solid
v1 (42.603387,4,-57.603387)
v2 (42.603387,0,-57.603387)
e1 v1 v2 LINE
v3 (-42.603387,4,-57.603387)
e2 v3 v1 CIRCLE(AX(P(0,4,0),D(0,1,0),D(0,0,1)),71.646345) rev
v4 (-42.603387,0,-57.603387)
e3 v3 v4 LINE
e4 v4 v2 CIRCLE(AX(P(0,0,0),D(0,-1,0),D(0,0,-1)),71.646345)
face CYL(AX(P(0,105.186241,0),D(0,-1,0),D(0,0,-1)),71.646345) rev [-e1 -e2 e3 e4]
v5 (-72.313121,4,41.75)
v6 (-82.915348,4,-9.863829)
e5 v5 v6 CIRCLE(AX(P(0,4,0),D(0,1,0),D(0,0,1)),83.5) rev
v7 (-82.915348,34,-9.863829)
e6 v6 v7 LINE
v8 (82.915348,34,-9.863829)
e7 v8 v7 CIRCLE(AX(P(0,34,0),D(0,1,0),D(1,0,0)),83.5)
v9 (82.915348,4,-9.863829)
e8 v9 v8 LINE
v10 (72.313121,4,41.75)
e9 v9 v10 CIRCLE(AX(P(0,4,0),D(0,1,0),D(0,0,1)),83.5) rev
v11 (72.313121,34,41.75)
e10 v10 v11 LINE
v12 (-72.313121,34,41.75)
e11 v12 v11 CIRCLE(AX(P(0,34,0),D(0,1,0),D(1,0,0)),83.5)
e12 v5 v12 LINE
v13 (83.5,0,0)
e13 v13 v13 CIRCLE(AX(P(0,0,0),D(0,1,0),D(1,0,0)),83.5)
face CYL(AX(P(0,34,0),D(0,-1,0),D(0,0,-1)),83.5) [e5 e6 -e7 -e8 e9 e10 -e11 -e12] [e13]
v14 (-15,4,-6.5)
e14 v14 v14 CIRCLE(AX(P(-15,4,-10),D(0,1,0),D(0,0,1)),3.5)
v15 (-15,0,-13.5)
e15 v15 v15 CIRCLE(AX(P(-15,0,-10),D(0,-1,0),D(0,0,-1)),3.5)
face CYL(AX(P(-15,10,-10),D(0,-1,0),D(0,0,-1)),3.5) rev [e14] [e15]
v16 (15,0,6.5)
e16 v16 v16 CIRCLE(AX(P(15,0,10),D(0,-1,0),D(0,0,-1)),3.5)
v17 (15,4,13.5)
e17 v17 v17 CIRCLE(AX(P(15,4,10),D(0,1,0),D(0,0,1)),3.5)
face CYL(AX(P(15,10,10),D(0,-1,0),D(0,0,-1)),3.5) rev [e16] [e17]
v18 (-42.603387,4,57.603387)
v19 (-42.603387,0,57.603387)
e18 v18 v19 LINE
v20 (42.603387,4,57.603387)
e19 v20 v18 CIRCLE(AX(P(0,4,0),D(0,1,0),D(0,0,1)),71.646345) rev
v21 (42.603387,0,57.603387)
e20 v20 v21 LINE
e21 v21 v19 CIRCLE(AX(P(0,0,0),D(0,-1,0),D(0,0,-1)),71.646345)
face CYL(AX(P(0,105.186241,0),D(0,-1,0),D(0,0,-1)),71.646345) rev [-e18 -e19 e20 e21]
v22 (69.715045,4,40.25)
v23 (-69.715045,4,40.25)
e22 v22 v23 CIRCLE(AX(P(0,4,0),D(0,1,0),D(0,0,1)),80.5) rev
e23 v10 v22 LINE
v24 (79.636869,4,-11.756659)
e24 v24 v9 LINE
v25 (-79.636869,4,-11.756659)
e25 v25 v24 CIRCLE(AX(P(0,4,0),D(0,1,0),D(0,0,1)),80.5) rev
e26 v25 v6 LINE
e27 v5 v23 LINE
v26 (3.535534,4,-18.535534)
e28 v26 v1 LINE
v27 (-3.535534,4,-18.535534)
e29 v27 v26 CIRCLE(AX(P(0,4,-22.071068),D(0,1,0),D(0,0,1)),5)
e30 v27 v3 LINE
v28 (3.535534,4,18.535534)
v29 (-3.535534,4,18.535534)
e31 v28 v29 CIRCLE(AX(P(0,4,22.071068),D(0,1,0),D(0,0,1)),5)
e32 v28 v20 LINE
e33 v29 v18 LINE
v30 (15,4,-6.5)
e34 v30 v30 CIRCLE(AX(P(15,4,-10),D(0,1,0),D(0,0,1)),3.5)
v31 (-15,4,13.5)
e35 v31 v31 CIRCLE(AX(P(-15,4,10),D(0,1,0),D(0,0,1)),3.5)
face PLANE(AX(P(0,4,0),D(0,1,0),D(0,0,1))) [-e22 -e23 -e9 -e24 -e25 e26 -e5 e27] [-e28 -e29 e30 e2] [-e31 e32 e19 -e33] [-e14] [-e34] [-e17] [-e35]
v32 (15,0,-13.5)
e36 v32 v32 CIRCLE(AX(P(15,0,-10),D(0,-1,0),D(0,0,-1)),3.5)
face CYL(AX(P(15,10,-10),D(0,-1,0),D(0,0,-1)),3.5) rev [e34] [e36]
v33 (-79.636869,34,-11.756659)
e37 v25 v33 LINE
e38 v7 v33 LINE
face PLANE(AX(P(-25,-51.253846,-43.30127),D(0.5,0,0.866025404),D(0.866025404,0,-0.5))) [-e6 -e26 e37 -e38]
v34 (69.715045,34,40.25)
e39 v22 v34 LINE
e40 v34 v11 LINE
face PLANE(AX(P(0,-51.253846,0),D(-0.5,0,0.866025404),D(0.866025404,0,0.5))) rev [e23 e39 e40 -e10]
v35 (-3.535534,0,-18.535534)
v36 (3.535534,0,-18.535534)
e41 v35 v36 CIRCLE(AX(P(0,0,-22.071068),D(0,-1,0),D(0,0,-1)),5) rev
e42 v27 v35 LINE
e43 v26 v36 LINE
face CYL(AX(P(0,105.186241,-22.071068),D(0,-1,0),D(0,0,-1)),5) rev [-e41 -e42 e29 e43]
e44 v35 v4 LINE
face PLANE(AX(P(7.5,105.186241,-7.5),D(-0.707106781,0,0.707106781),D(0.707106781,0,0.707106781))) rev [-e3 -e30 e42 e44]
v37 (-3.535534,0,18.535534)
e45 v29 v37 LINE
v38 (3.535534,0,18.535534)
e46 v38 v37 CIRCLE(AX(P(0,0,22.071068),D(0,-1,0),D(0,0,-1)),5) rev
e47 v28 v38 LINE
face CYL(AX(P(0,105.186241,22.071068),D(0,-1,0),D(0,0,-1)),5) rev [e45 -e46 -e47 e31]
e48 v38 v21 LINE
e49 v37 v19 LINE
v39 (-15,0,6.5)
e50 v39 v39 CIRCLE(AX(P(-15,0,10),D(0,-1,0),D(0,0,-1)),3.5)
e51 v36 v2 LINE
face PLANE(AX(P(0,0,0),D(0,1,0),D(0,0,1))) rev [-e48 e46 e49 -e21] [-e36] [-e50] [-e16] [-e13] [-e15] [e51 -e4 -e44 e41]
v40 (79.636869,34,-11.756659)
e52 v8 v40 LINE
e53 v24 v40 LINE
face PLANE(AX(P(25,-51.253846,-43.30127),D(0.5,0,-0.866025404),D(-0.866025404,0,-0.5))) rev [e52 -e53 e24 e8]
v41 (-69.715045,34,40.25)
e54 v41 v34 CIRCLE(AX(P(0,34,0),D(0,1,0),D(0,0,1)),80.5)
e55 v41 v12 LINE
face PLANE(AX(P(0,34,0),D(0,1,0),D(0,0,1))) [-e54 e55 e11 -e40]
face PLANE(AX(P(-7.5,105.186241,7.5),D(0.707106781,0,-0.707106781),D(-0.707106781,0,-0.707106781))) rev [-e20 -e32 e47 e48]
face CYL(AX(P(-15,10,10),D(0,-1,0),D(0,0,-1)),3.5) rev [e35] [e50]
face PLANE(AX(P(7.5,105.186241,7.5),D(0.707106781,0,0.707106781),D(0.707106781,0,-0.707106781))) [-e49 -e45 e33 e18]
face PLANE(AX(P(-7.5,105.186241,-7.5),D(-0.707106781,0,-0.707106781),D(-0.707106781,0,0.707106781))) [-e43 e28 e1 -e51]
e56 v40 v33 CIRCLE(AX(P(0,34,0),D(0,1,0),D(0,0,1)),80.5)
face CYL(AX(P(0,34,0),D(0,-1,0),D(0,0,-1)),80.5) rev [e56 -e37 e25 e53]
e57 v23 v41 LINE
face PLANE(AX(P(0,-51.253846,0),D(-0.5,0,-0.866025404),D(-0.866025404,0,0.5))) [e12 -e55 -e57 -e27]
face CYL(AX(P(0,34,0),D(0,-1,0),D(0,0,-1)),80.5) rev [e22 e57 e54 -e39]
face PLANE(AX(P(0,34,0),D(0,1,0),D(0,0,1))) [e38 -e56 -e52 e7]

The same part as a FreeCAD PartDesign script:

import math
import FreeCAD as App
import Part
import Sketcher
from FreeCAD import Vector
Q = App.Units.Quantity

doc = App.newDocument("Part")
body = doc.addObject("PartDesign::Body", "Body")

# Sketch on XZ plane
sketch1 = doc.addObject("Sketcher::SketchObject", "Sketch")
body.addObject(sketch1)
sketch1.AttachmentSupport = (doc.XZ_Plane, [""])
sketch1.MapMode = "FlatFace"
sketch1.addGeometry(Part.Circle(Vector(0, 0, 0), Vector(0, 0, 1), 80), False)
sketch1.addConstraint([
    Sketcher.Constraint("Coincident", 0, 3, -1, 1),
    Sketcher.Constraint("Diameter", 0, 161.0),
])
pad1 = doc.addObject("PartDesign::Pad", "Pad")
body.addObject(pad1)
pad1.Profile = sketch1
pad1.Length = 4
pad1.Reversed = True

# Sketch on XZ plane
sketch2 = doc.addObject("Sketcher::SketchObject", "Sketch001")
body.addObject(sketch2)
sketch2.AttachmentSupport = (doc.XZ_Plane, [""])
sketch2.MapMode = "FlatFace"
sketch2.addGeometry([
    Part.Circle(Vector(0, 0, 0), Vector(0, 0, 1), 84),
    Part.Circle(Vector(0, 0, 0), Vector(0, 0, 1), 80),
], False)
sketch2.addConstraint([
    Sketcher.Constraint("Coincident", 0, 3, -1, 1),
    Sketcher.Constraint("Coincident", 1, 3, -1, 1),
    Sketcher.Constraint("Diameter", 0, 167.0),
    Sketcher.Constraint("Diameter", 1, 161.0),
])
pad2 = doc.addObject("PartDesign::Pad", "Pad001")
body.addObject(pad2)
pad2.Profile = sketch2
pad2.Length = 34
pad2.Reversed = True

# Sketch on XZ plane
sketch3 = doc.addObject("Sketcher::SketchObject", "Sketch002")
body.addObject(sketch3)
sketch3.AttachmentSupport = (doc.XZ_Plane, [""])
sketch3.MapMode = "FlatFace"
sketch3.AttachmentOffset = App.Placement(Vector(0, 0, -4), App.Rotation())
sketch3.addGeometry([
    Part.LineSegment(Vector(82.9, -9.9, 0), Vector(79.6, -11.8, 0)),  # 0
    Part.ArcOfCircle(Part.Circle(Vector(0, 0, 0), Vector(0, 0, 1), 80.5), math.radians(-8.4), math.radians(0)),  # 1
    Part.ArcOfCircle(Part.Circle(Vector(0, 0, 0), Vector(0, 0, 1), 80.5), math.radians(0), math.radians(30)),  # 2
    Part.LineSegment(Vector(69.7, 40.2, 0), Vector(72.3, 41.8, 0)),  # 3
    Part.ArcOfCircle(Part.Circle(Vector(0, 0, 0), Vector(0, 0, 1), 83.5), math.radians(0), math.radians(30)),  # 4
    Part.ArcOfCircle(Part.Circle(Vector(0, 0, 0), Vector(0, 0, 1), 83.5), math.radians(-6.78), math.radians(0)),  # 5
    Part.ArcOfCircle(Part.Circle(Vector(0, 0, 0), Vector(0, 0, 1), 80.5), math.radians(150), math.radians(188)),  # 6
    Part.LineSegment(Vector(-79.6, -11.8, 0), Vector(-82.9, -9.9, 0)),  # 7
    Part.ArcOfCircle(Part.Circle(Vector(0, 0, 0), Vector(0, 0, 1), 83.5), math.radians(150), math.radians(187)),  # 8
    Part.LineSegment(Vector(-72.3, 41.8, 0), Vector(-69.7, 40.2, 0)),  # 9
], False)
sketch3.addConstraint([
    Sketcher.Constraint("Coincident", 0, 2, 1, 1),
    Sketcher.Constraint("Tangent", 1, 2, 2, 1),
    Sketcher.Constraint("Coincident", 2, 2, 3, 1),
    Sketcher.Constraint("Coincident", 3, 2, 4, 2),
    Sketcher.Constraint("Tangent", 4, 1, 5, 2),
    Sketcher.Constraint("Coincident", 5, 1, 0, 1),
    Sketcher.Constraint("Coincident", 6, 2, 7, 1),
    Sketcher.Constraint("Coincident", 7, 2, 8, 2),
    Sketcher.Constraint("Coincident", 8, 1, 9, 1),
    Sketcher.Constraint("Coincident", 9, 2, 6, 1),
    Sketcher.Constraint("Coincident", 1, 3, -1, 1),
    Sketcher.Constraint("Coincident", 4, 3, -1, 1),
    Sketcher.Constraint("Coincident", 6, 3, -1, 1),
    Sketcher.Constraint("Coincident", 8, 3, -1, 1),
    Sketcher.Constraint("Equal", 1, 2),
    Sketcher.Constraint("Equal", 4, 5),
    Sketcher.Constraint("Equal", 2, 6),
    Sketcher.Constraint("Equal", 5, 8),
    Sketcher.Constraint("PointOnObject", 1, 2, -1),
    Sketcher.Constraint("PointOnObject", 4, 1, -1),
    Sketcher.Constraint("Parallel", 0, 3),
    Sketcher.Constraint("Parallel", 7, 9),
    Sketcher.Constraint("Horizontal", 0, 2, 6, 2),
    Sketcher.Constraint("Horizontal", 5, 1, 7, 2),
    Sketcher.Constraint("Horizontal", 3, 2, 8, 1),
    Sketcher.Constraint("Radius", 1, 80.5),
    Sketcher.Constraint("Radius", 4, 83.5),
    Sketcher.Constraint("Angle", 0, Q("-150 deg")),
    Sketcher.Constraint("DistanceY", -1, 1, 2, 2, 40.25),
    Sketcher.Constraint("Distance", 0, 3.785661),
])
pocket1 = doc.addObject("PartDesign::Pocket", "Pocket")
body.addObject(pocket1)
pocket1.Profile = sketch3
pocket1.Length = 30

# Sketch on XZ plane
sketch4 = doc.addObject("Sketcher::SketchObject", "Sketch003")
body.addObject(sketch4)
sketch4.AttachmentSupport = (doc.XZ_Plane, [""])
sketch4.MapMode = "FlatFace"
sketch4.addGeometry([
    Part.LineSegment(Vector(-43, 58, 0), Vector(-4, 19, 0)),  # 0
    Part.ArcOfCircle(Part.Circle(Vector(0, 22, 0), Vector(0, 0, 1), 5), math.radians(-135), math.radians(-45)),  # 1
    Part.LineSegment(Vector(4, 19, 0), Vector(43, 58, 0)),  # 2
    Part.ArcOfCircle(Part.Circle(Vector(0, 0, 0), Vector(0, 0, 1), 72), math.radians(54), math.radians(126)),  # 3
    Part.LineSegment(Vector(-4, -19, 0), Vector(-43, -58, 0)),  # 4
    Part.ArcOfCircle(Part.Circle(Vector(0, 0, 0), Vector(0, 0, 1), 72), math.radians(-126), math.radians(-54)),  # 5
    Part.LineSegment(Vector(43, -58, 0), Vector(4, -19, 0)),  # 6
    Part.ArcOfCircle(Part.Circle(Vector(0, -22, 0), Vector(0, 0, 1), 5), math.radians(45), math.radians(135)),  # 7
], False)
sketch4.addConstraint([
    Sketcher.Constraint("Tangent", 0, 2, 1, 1),
    Sketcher.Constraint("Tangent", 1, 2, 2, 1),
    Sketcher.Constraint("Coincident", 2, 2, 3, 1),
    Sketcher.Constraint("Coincident", 3, 2, 0, 1),
    Sketcher.Constraint("Coincident", 4, 2, 5, 1),
    Sketcher.Constraint("Coincident", 5, 2, 6, 1),
    Sketcher.Constraint("Tangent", 6, 2, 7, 1),
    Sketcher.Constraint("Tangent", 7, 2, 4, 1),
    Sketcher.Constraint("Coincident", 3, 3, -1, 1),
    Sketcher.Constraint("Coincident", 5, 3, -1, 1),
    Sketcher.Constraint("Equal", 3, 5),
    Sketcher.Constraint("Equal", 1, 7),
    Sketcher.Constraint("Symmetric", 1, 3, 7, 3, -1, 1),
    Sketcher.Constraint("Symmetric", 0, 2, 1, 2, -2),
    Sketcher.Constraint("Perpendicular", 0, 2),
    Sketcher.Constraint("Parallel", 2, 4),
    Sketcher.Constraint("Perpendicular", 4, 6),
    Sketcher.Constraint("Radius", 1, 5.0),
    Sketcher.Constraint("Radius", 3, 71.646345),
    Sketcher.Constraint("DistanceY", 7, 3, 0, 2, 40.606602),
])
pocket2 = doc.addObject("PartDesign::Pocket", "Pocket001")
body.addObject(pocket2)
pocket2.Profile = sketch4
pocket2.Length = 4

# Sketch on XZ plane
sketch5 = doc.addObject("Sketcher::SketchObject", "Sketch004")
body.addObject(sketch5)
sketch5.AttachmentSupport = (doc.XZ_Plane, [""])
sketch5.MapMode = "FlatFace"
sketch5.addGeometry([
    Part.Circle(Vector(-15, 10, 0), Vector(0, 0, 1), 3.5),
    Part.Circle(Vector(-15, -10, 0), Vector(0, 0, 1), 3.5),
    Part.Circle(Vector(15, 10, 0), Vector(0, 0, 1), 3.5),
    Part.Circle(Vector(15, -10, 0), Vector(0, 0, 1), 3.5),
], False)
sketch5.addConstraint([
    Sketcher.Constraint("Equal", 0, 1),
    Sketcher.Constraint("Equal", 1, 2),
    Sketcher.Constraint("Equal", 2, 3),
    Sketcher.Constraint("Symmetric", 1, 3, 2, 3, -1, 1),
    Sketcher.Constraint("Symmetric", 0, 3, 3, 3, -1, 1),
    Sketcher.Constraint("Symmetric", 0, 3, 2, 3, -2),
    Sketcher.Constraint("Diameter", 0, 7.0),
    Sketcher.Constraint("DistanceX", 0, 3, -1, 1, 15.0),
    Sketcher.Constraint("DistanceY", -1, 1, 0, 3, 10.0),
])
pocket3 = doc.addObject("PartDesign::Pocket", "Pocket002")
body.addObject(pocket3)
pocket3.Profile = sketch5
pocket3.Length = 10

doc.recompute()
